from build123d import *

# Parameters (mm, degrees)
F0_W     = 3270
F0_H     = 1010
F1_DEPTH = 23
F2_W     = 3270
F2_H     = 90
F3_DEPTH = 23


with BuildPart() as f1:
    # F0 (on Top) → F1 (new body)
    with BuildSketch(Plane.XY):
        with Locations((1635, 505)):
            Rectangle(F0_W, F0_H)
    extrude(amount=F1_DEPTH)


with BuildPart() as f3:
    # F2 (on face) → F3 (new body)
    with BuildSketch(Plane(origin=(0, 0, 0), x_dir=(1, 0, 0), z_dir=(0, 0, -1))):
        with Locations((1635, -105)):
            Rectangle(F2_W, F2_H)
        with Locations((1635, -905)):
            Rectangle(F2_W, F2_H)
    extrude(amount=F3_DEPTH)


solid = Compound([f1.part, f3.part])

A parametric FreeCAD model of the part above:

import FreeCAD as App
import Part
import Sketcher

V = App.Vector
Q = App.Units.Quantity

doc = App.newDocument("Part")
body = doc.addObject("PartDesign::Body", "Body")

# Sketch on XY plane
sketch1 = doc.addObject("Sketcher::SketchObject", "Sketch")
body.addObject(sketch1)
sketch1.AttachmentSupport = (doc.XY_Plane, [""])
sketch1.MapMode = "FlatFace"
sketch1.addGeometry([
    Part.LineSegment(V(0, 1010, 0), V(0, 0, 0)),
    Part.LineSegment(V(0, 0, 0), V(3270, 0, 0)),
    Part.LineSegment(V(3270, 0, 0), V(3270, 1010, 0)),
    Part.LineSegment(V(3270, 1010, 0), V(0, 1010, 0)),
], False)
sketch1.addConstraint([
    Sketcher.Constraint("Coincident", 0, 2, 1, 1),
    Sketcher.Constraint("Coincident", 1, 2, 2, 1),
    Sketcher.Constraint("Coincident", 2, 2, 3, 1),
    Sketcher.Constraint("Coincident", 3, 2, 0, 1),
    Sketcher.Constraint("Vertical", 0),
    Sketcher.Constraint("Horizontal", 1),
    Sketcher.Constraint("Vertical", 2),
    Sketcher.Constraint("Horizontal", 3),
    Sketcher.Constraint("Coincident", 0, 2, -1, 1),
    Sketcher.Constraint("DistanceX", 1, 1, 1, 2, Q("3270 mm")),
    Sketcher.Constraint("DistanceY", 0, 2, 0, 1, Q("1010 mm")),
])
pad1 = doc.addObject("PartDesign::Pad", "Pad")
body.addObject(pad1)
pad1.Profile = sketch1
pad1.Length = 23
body2 = doc.addObject("PartDesign::Body", "Body001")
body2.AllowCompound = True

# Sketch on XY plane
sketch2 = doc.addObject("Sketcher::SketchObject", "Sketch001")
body2.addObject(sketch2)
sketch2.AttachmentSupport = (doc.getObject("XY_Plane001"), [""])
sketch2.MapMode = "FlatFace"
sketch2.addGeometry([
    Part.LineSegment(V(0, 60, 0), V(0, 150, 0)),  # 0
    Part.LineSegment(V(0, 150, 0), V(3270, 150, 0)),  # 1
    Part.LineSegment(V(3270, 150, 0), V(3270, 60, 0)),  # 2
    Part.LineSegment(V(3270, 60, 0), V(0, 60, 0)),  # 3
    Part.LineSegment(V(0, 860, 0), V(0, 950, 0)),  # 4
    Part.LineSegment(V(0, 950, 0), V(3270, 950, 0)),  # 5
    Part.LineSegment(V(3270, 950, 0), V(3270, 860, 0)),  # 6
    Part.LineSegment(V(3270, 860, 0), V(0, 860, 0)),  # 7
], False)
sketch2.addConstraint([
    Sketcher.Constraint("Coincident", 0, 2, 1, 1),
    Sketcher.Constraint("Coincident", 1, 2, 2, 1),
    Sketcher.Constraint("Coincident", 2, 2, 3, 1),
    Sketcher.Constraint("Coincident", 3, 2, 0, 1),
    Sketcher.Constraint("Coincident", 4, 2, 5, 1),
    Sketcher.Constraint("Coincident", 5, 2, 6, 1),
    Sketcher.Constraint("Coincident", 6, 2, 7, 1),
    Sketcher.Constraint("Coincident", 7, 2, 4, 1),
    Sketcher.Constraint("Vertical", 0),
    Sketcher.Constraint("Horizontal", 1),
    Sketcher.Constraint("Vertical", 2),
    Sketcher.Constraint("Horizontal", 3),
    Sketcher.Constraint("Vertical", 4),
    Sketcher.Constraint("Horizontal", 5),
    Sketcher.Constraint("Vertical", 6),
    Sketcher.Constraint("Horizontal", 7),
    Sketcher.Constraint("PointOnObject", 0, 2, -2),
    Sketcher.Constraint("PointOnObject", 4, 2, -2),
    Sketcher.Constraint("Vertical", 2, 2, 5, 2),
    Sketcher.Constraint("Equal", 2, 4),
    Sketcher.Constraint("DistanceX", 1, 1, 1, 2, Q("3270 mm")),
    Sketcher.Constraint("DistanceY", 0, 1, 0, 2, Q("90 mm")),
    Sketcher.Constraint("DistanceY", -1, 1, 0, 2, Q("150 mm")),
    Sketcher.Constraint("DistanceY", -1, 1, 4, 2, Q("950 mm")),
])
pad2 = doc.addObject("PartDesign::Pad", "Pad001")
body2.addObject(pad2)
pad2.Profile = sketch2
pad2.Length = 23
pad2.Reversed = True

doc.recompute()
